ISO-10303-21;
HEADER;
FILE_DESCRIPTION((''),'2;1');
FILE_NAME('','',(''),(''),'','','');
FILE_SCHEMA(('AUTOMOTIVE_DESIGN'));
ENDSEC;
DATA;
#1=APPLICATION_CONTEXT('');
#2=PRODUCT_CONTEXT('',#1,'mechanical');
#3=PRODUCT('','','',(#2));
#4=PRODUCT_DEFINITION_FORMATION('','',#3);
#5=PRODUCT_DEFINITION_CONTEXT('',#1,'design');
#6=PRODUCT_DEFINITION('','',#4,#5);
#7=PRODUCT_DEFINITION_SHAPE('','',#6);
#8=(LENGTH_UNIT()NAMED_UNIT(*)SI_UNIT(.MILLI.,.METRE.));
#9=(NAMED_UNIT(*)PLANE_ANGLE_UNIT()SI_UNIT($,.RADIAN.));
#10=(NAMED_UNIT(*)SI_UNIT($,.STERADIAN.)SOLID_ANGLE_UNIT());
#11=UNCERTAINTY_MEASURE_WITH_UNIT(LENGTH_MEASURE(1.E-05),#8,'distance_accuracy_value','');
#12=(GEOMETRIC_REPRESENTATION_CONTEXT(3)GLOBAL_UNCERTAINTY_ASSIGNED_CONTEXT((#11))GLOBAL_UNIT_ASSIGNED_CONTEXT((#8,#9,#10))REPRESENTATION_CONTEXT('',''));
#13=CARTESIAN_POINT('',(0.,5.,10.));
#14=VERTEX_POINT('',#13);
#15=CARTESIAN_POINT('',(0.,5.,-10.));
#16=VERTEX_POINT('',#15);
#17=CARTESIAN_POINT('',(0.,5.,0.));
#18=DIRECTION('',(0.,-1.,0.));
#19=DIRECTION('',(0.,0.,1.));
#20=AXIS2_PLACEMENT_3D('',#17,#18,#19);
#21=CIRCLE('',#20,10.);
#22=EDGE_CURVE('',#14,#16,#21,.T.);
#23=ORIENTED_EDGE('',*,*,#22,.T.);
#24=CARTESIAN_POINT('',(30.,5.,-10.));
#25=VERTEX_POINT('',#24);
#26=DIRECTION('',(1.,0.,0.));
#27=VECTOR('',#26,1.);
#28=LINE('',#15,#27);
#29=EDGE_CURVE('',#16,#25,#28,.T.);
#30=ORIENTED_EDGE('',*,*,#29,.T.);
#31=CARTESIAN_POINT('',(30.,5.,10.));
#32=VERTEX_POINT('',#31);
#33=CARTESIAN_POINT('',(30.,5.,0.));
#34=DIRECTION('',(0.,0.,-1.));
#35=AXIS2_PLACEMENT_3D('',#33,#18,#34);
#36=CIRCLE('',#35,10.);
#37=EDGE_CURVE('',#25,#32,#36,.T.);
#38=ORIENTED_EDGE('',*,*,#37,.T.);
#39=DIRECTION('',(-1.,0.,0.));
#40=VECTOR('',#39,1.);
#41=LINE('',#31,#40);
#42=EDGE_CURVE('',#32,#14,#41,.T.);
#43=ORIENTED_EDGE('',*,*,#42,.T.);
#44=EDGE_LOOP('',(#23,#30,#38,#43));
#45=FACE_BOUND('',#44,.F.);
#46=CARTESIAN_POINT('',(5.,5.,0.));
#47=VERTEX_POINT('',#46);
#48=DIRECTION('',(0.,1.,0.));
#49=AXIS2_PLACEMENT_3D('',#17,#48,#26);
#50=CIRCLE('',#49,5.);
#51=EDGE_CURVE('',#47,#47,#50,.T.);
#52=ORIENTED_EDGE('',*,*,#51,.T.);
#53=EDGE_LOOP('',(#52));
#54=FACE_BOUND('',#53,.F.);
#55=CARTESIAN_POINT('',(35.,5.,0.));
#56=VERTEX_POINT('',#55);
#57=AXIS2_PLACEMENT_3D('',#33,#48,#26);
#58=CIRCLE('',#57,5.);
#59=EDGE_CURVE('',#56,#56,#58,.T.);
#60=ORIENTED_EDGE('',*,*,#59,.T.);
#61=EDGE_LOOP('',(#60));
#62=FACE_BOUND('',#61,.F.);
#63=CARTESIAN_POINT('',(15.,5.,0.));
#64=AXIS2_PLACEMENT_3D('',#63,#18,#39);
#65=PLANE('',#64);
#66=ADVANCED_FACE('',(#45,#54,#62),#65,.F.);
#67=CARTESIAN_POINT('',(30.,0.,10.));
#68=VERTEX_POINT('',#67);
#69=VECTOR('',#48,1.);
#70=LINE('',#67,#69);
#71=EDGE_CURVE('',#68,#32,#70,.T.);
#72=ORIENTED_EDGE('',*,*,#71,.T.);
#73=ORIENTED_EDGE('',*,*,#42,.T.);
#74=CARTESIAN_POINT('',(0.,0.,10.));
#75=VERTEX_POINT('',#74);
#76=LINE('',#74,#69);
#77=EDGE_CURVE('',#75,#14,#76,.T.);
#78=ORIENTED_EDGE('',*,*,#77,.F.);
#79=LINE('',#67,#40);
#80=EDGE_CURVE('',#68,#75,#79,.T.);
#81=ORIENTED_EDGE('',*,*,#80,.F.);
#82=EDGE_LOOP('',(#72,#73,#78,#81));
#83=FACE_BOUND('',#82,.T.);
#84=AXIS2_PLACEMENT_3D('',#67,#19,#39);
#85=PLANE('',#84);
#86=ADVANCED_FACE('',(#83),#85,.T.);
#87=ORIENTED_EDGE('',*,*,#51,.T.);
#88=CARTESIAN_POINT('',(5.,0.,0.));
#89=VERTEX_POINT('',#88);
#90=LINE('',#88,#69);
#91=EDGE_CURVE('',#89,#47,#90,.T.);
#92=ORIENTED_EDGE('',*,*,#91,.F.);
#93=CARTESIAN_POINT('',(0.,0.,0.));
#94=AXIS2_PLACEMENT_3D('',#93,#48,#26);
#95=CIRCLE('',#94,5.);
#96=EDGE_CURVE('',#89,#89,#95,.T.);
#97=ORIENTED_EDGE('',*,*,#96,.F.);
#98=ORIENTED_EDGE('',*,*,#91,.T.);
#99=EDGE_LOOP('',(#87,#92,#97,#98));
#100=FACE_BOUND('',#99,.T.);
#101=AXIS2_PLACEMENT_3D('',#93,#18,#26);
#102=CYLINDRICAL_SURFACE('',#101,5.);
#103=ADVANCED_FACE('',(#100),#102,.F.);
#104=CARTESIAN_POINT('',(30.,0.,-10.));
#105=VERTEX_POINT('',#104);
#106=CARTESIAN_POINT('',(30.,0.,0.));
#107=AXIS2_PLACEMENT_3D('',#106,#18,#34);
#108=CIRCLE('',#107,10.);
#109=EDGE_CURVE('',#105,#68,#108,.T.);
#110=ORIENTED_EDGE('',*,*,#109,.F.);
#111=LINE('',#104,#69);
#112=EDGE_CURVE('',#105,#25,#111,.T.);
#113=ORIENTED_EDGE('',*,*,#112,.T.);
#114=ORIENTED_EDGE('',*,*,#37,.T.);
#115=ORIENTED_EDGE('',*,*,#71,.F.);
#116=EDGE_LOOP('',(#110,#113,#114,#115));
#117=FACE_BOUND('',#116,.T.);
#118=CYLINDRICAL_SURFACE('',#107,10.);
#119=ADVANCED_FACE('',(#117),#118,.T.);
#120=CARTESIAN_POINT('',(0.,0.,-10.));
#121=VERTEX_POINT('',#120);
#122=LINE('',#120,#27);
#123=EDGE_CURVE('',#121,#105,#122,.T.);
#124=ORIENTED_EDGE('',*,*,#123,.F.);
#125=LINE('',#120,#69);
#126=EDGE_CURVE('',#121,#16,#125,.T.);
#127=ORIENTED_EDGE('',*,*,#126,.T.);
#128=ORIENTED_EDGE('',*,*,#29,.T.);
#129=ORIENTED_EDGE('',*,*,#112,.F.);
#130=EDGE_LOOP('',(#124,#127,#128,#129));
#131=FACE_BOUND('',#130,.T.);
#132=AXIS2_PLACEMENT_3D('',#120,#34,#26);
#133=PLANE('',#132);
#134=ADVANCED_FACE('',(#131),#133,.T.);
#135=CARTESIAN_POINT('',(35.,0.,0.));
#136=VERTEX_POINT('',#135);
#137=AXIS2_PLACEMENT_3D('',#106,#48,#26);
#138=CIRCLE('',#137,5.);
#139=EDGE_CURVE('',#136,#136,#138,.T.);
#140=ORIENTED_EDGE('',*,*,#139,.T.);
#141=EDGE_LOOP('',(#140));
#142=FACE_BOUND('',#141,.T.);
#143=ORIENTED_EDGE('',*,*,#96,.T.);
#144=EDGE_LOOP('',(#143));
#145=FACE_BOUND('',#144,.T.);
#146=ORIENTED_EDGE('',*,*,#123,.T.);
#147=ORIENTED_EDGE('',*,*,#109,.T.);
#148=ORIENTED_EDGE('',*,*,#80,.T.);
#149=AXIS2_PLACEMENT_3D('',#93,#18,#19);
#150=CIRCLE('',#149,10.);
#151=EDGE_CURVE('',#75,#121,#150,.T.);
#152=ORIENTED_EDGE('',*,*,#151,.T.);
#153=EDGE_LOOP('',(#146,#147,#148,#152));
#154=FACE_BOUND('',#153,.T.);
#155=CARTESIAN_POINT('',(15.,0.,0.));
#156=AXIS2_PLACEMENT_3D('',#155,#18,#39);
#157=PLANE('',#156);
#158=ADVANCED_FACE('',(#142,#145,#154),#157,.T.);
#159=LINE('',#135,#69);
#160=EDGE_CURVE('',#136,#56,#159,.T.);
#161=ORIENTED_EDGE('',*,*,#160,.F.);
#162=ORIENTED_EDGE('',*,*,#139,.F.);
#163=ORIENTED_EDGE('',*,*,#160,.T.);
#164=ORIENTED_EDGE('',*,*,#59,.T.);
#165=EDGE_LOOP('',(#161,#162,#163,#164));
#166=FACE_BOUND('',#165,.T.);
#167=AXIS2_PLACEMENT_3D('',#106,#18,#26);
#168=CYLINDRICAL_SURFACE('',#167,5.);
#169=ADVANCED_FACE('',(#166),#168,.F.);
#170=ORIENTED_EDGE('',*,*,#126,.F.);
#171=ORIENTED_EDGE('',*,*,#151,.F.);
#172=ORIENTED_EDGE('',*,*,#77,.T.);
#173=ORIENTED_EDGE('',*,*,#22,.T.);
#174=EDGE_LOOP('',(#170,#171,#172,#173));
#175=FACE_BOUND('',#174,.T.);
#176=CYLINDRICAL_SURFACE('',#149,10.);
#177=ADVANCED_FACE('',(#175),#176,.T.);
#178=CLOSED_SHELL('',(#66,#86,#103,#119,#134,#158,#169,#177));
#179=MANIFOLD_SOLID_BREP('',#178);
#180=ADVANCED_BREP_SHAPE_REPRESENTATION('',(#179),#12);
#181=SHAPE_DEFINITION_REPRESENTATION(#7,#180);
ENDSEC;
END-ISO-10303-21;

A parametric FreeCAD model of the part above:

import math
import FreeCAD as App
import Part
import Sketcher

doc = App.newDocument("Part")
body = doc.addObject("PartDesign::Body", "Body")

# Sketch on XZ plane
sketch1 = body.newObject("Sketcher::SketchObject", "Sketch")
sketch1.AttachmentSupport = (doc.getObject("XZ_Plane"), [""])
sketch1.MapMode = "FlatFace"
sketch1.addGeometry([
    Part.LineSegment(App.Vector(30, -10, 0), App.Vector(0, -10, 0)),  # 0
    Part.ArcOfCircle(Part.Circle(App.Vector(0, 0, 0), App.Vector(0, 0, 1), 10), math.radians(90), math.radians(270)),  # 1
    Part.LineSegment(App.Vector(0, 10, 0), App.Vector(30, 10, 0)),  # 2
    Part.ArcOfCircle(Part.Circle(App.Vector(30, 0, 0), App.Vector(0, 0, 1), 10), math.radians(-90), math.radians(90)),  # 3
    Part.Circle(App.Vector(30, 0, 0), App.Vector(0, 0, 1), 5),  # 4
    Part.Circle(App.Vector(0, 0, 0), App.Vector(0, 0, 1), 5),  # 5
], False)
sketch1.addConstraint([
    Sketcher.Constraint("Tangent", 0, 2, 1, 2),
    Sketcher.Constraint("Tangent", 1, 1, 2, 1),
    Sketcher.Constraint("Tangent", 2, 2, 3, 2),
    Sketcher.Constraint("Tangent", 3, 1, 0, 1),
    Sketcher.Constraint("Horizontal", 0),
    Sketcher.Constraint("Horizontal", 2),
    Sketcher.Constraint("Coincident", 1, 3, -1, 1),
    Sketcher.Constraint("Coincident", 5, 3, -1, 1),
    Sketcher.Constraint("Coincident", 4, 3, 3, 3),
    Sketcher.Constraint("Equal", 4, 5),
    Sketcher.Constraint("Diameter", 4, 10.0),
    Sketcher.Constraint("Radius", 1, 10.0),
    Sketcher.Constraint("DistanceX", 0, 2, 0, 1, 30.0),
])
pad1 = body.newObject("PartDesign::Pad", "Pad")
pad1.Profile = sketch1
pad1.Length = 5
pad1.Reversed = True

doc.recompute()
